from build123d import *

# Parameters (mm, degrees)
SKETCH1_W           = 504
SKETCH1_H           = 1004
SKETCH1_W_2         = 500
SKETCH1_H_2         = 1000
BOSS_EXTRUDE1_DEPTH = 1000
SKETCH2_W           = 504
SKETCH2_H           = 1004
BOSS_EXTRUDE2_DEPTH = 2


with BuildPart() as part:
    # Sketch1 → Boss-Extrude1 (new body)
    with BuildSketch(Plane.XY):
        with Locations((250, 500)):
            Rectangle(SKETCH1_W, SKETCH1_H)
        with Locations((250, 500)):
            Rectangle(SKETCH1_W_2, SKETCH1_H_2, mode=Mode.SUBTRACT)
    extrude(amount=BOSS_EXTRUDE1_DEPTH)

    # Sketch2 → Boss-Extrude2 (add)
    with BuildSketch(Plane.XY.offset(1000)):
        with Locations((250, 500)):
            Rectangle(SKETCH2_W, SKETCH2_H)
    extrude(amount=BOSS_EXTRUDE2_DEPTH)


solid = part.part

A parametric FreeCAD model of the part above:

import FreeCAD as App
import Part
import Sketcher


def add_polygon(sketch, points):
    """Adds a closed chain of lines whose ends are joined by coincident constraints."""
    first, n = sketch.GeometryCount, len(points)
    for a, b in zip(points, points[1:] + points[:1]):
        sketch.addGeometry(Part.LineSegment(App.Vector(*a, 0), App.Vector(*b, 0)), False)
    for i in range(n):
        sketch.addConstraint(Sketcher.Constraint("Coincident", first + i, 2, first + (i + 1) % n, 1))

doc = App.newDocument("Part")
body = doc.addObject("PartDesign::Body", "Body")

# Sketch on XY plane
sketch1 = doc.addObject("Sketcher::SketchObject", "Sketch")
body.addObject(sketch1)
sketch1.AttachmentSupport = (doc.XY_Plane, [""])
sketch1.MapMode = "FlatFace"
add_polygon(sketch1, [(-2, 1002), (-2, -2), (502, -2), (502, 1002)])  # lines 0-3
add_polygon(sketch1, [(500, 0), (0, 0), (0, 1000), (500, 1000)])  # lines 4-7
sketch1.addConstraint(Sketcher.Constraint("Vertical", 0))
sketch1.addConstraint(Sketcher.Constraint("Horizontal", 1))
sketch1.addConstraint(Sketcher.Constraint("Vertical", 2))
sketch1.addConstraint(Sketcher.Constraint("Horizontal", 3))
sketch1.addConstraint(Sketcher.Constraint("Horizontal", 4))
sketch1.addConstraint(Sketcher.Constraint("Vertical", 5))
sketch1.addConstraint(Sketcher.Constraint("Horizontal", 6))
sketch1.addConstraint(Sketcher.Constraint("Vertical", 7))
sketch1.addConstraint(Sketcher.Constraint("Coincident", 4, 2, -1, 1))
sketch1.addConstraint(Sketcher.Constraint("DistanceX", 1, 1, 1, 2, 504.0))
sketch1.addConstraint(Sketcher.Constraint("DistanceX", 4, 2, 4, 1, 500.0))
sketch1.addConstraint(Sketcher.Constraint("DistanceY", 0, 2, 0, 1, 1004.0))
sketch1.addConstraint(Sketcher.Constraint("DistanceY", 5, 1, 5, 2, 1000.0))
sketch1.addConstraint(Sketcher.Constraint("DistanceX", 0, 2, -1, 1, 2.0))
sketch1.addConstraint(Sketcher.Constraint("DistanceY", 0, 2, -1, 1, 2.0))
pad1 = doc.addObject("PartDesign::Pad", "Pad")
body.addObject(pad1)
pad1.Profile = sketch1
pad1.Length = 1000

# Sketch on XY plane
sketch2 = doc.addObject("Sketcher::SketchObject", "Sketch001")
body.addObject(sketch2)
sketch2.AttachmentSupport = (doc.XY_Plane, [""])
sketch2.MapMode = "FlatFace"
sketch2.AttachmentOffset = App.Placement(App.Vector(0, 0, 1000), App.Rotation())
add_polygon(sketch2, [(-2, 1002), (-2, -2), (502, -2), (502, 1002)])  # lines 0-3
sketch2.addConstraint(Sketcher.Constraint("Vertical", 0))
sketch2.addConstraint(Sketcher.Constraint("Horizontal", 1))
sketch2.addConstraint(Sketcher.Constraint("Vertical", 2))
sketch2.addConstraint(Sketcher.Constraint("Horizontal", 3))
sketch2.addConstraint(Sketcher.Constraint("DistanceX", 1, 1, 1, 2, 504.0))
sketch2.addConstraint(Sketcher.Constraint("DistanceY", 0, 2, 0, 1, 1004.0))
sketch2.addConstraint(Sketcher.Constraint("DistanceX", 0, 2, -1, 1, 2.0))
sketch2.addConstraint(Sketcher.Constraint("DistanceY", 0, 2, -1, 1, 2.0))
pad2 = doc.addObject("PartDesign::Pad", "Pad001")
body.addObject(pad2)
pad2.Profile = sketch2
pad2.Length = 2

doc.recompute()
